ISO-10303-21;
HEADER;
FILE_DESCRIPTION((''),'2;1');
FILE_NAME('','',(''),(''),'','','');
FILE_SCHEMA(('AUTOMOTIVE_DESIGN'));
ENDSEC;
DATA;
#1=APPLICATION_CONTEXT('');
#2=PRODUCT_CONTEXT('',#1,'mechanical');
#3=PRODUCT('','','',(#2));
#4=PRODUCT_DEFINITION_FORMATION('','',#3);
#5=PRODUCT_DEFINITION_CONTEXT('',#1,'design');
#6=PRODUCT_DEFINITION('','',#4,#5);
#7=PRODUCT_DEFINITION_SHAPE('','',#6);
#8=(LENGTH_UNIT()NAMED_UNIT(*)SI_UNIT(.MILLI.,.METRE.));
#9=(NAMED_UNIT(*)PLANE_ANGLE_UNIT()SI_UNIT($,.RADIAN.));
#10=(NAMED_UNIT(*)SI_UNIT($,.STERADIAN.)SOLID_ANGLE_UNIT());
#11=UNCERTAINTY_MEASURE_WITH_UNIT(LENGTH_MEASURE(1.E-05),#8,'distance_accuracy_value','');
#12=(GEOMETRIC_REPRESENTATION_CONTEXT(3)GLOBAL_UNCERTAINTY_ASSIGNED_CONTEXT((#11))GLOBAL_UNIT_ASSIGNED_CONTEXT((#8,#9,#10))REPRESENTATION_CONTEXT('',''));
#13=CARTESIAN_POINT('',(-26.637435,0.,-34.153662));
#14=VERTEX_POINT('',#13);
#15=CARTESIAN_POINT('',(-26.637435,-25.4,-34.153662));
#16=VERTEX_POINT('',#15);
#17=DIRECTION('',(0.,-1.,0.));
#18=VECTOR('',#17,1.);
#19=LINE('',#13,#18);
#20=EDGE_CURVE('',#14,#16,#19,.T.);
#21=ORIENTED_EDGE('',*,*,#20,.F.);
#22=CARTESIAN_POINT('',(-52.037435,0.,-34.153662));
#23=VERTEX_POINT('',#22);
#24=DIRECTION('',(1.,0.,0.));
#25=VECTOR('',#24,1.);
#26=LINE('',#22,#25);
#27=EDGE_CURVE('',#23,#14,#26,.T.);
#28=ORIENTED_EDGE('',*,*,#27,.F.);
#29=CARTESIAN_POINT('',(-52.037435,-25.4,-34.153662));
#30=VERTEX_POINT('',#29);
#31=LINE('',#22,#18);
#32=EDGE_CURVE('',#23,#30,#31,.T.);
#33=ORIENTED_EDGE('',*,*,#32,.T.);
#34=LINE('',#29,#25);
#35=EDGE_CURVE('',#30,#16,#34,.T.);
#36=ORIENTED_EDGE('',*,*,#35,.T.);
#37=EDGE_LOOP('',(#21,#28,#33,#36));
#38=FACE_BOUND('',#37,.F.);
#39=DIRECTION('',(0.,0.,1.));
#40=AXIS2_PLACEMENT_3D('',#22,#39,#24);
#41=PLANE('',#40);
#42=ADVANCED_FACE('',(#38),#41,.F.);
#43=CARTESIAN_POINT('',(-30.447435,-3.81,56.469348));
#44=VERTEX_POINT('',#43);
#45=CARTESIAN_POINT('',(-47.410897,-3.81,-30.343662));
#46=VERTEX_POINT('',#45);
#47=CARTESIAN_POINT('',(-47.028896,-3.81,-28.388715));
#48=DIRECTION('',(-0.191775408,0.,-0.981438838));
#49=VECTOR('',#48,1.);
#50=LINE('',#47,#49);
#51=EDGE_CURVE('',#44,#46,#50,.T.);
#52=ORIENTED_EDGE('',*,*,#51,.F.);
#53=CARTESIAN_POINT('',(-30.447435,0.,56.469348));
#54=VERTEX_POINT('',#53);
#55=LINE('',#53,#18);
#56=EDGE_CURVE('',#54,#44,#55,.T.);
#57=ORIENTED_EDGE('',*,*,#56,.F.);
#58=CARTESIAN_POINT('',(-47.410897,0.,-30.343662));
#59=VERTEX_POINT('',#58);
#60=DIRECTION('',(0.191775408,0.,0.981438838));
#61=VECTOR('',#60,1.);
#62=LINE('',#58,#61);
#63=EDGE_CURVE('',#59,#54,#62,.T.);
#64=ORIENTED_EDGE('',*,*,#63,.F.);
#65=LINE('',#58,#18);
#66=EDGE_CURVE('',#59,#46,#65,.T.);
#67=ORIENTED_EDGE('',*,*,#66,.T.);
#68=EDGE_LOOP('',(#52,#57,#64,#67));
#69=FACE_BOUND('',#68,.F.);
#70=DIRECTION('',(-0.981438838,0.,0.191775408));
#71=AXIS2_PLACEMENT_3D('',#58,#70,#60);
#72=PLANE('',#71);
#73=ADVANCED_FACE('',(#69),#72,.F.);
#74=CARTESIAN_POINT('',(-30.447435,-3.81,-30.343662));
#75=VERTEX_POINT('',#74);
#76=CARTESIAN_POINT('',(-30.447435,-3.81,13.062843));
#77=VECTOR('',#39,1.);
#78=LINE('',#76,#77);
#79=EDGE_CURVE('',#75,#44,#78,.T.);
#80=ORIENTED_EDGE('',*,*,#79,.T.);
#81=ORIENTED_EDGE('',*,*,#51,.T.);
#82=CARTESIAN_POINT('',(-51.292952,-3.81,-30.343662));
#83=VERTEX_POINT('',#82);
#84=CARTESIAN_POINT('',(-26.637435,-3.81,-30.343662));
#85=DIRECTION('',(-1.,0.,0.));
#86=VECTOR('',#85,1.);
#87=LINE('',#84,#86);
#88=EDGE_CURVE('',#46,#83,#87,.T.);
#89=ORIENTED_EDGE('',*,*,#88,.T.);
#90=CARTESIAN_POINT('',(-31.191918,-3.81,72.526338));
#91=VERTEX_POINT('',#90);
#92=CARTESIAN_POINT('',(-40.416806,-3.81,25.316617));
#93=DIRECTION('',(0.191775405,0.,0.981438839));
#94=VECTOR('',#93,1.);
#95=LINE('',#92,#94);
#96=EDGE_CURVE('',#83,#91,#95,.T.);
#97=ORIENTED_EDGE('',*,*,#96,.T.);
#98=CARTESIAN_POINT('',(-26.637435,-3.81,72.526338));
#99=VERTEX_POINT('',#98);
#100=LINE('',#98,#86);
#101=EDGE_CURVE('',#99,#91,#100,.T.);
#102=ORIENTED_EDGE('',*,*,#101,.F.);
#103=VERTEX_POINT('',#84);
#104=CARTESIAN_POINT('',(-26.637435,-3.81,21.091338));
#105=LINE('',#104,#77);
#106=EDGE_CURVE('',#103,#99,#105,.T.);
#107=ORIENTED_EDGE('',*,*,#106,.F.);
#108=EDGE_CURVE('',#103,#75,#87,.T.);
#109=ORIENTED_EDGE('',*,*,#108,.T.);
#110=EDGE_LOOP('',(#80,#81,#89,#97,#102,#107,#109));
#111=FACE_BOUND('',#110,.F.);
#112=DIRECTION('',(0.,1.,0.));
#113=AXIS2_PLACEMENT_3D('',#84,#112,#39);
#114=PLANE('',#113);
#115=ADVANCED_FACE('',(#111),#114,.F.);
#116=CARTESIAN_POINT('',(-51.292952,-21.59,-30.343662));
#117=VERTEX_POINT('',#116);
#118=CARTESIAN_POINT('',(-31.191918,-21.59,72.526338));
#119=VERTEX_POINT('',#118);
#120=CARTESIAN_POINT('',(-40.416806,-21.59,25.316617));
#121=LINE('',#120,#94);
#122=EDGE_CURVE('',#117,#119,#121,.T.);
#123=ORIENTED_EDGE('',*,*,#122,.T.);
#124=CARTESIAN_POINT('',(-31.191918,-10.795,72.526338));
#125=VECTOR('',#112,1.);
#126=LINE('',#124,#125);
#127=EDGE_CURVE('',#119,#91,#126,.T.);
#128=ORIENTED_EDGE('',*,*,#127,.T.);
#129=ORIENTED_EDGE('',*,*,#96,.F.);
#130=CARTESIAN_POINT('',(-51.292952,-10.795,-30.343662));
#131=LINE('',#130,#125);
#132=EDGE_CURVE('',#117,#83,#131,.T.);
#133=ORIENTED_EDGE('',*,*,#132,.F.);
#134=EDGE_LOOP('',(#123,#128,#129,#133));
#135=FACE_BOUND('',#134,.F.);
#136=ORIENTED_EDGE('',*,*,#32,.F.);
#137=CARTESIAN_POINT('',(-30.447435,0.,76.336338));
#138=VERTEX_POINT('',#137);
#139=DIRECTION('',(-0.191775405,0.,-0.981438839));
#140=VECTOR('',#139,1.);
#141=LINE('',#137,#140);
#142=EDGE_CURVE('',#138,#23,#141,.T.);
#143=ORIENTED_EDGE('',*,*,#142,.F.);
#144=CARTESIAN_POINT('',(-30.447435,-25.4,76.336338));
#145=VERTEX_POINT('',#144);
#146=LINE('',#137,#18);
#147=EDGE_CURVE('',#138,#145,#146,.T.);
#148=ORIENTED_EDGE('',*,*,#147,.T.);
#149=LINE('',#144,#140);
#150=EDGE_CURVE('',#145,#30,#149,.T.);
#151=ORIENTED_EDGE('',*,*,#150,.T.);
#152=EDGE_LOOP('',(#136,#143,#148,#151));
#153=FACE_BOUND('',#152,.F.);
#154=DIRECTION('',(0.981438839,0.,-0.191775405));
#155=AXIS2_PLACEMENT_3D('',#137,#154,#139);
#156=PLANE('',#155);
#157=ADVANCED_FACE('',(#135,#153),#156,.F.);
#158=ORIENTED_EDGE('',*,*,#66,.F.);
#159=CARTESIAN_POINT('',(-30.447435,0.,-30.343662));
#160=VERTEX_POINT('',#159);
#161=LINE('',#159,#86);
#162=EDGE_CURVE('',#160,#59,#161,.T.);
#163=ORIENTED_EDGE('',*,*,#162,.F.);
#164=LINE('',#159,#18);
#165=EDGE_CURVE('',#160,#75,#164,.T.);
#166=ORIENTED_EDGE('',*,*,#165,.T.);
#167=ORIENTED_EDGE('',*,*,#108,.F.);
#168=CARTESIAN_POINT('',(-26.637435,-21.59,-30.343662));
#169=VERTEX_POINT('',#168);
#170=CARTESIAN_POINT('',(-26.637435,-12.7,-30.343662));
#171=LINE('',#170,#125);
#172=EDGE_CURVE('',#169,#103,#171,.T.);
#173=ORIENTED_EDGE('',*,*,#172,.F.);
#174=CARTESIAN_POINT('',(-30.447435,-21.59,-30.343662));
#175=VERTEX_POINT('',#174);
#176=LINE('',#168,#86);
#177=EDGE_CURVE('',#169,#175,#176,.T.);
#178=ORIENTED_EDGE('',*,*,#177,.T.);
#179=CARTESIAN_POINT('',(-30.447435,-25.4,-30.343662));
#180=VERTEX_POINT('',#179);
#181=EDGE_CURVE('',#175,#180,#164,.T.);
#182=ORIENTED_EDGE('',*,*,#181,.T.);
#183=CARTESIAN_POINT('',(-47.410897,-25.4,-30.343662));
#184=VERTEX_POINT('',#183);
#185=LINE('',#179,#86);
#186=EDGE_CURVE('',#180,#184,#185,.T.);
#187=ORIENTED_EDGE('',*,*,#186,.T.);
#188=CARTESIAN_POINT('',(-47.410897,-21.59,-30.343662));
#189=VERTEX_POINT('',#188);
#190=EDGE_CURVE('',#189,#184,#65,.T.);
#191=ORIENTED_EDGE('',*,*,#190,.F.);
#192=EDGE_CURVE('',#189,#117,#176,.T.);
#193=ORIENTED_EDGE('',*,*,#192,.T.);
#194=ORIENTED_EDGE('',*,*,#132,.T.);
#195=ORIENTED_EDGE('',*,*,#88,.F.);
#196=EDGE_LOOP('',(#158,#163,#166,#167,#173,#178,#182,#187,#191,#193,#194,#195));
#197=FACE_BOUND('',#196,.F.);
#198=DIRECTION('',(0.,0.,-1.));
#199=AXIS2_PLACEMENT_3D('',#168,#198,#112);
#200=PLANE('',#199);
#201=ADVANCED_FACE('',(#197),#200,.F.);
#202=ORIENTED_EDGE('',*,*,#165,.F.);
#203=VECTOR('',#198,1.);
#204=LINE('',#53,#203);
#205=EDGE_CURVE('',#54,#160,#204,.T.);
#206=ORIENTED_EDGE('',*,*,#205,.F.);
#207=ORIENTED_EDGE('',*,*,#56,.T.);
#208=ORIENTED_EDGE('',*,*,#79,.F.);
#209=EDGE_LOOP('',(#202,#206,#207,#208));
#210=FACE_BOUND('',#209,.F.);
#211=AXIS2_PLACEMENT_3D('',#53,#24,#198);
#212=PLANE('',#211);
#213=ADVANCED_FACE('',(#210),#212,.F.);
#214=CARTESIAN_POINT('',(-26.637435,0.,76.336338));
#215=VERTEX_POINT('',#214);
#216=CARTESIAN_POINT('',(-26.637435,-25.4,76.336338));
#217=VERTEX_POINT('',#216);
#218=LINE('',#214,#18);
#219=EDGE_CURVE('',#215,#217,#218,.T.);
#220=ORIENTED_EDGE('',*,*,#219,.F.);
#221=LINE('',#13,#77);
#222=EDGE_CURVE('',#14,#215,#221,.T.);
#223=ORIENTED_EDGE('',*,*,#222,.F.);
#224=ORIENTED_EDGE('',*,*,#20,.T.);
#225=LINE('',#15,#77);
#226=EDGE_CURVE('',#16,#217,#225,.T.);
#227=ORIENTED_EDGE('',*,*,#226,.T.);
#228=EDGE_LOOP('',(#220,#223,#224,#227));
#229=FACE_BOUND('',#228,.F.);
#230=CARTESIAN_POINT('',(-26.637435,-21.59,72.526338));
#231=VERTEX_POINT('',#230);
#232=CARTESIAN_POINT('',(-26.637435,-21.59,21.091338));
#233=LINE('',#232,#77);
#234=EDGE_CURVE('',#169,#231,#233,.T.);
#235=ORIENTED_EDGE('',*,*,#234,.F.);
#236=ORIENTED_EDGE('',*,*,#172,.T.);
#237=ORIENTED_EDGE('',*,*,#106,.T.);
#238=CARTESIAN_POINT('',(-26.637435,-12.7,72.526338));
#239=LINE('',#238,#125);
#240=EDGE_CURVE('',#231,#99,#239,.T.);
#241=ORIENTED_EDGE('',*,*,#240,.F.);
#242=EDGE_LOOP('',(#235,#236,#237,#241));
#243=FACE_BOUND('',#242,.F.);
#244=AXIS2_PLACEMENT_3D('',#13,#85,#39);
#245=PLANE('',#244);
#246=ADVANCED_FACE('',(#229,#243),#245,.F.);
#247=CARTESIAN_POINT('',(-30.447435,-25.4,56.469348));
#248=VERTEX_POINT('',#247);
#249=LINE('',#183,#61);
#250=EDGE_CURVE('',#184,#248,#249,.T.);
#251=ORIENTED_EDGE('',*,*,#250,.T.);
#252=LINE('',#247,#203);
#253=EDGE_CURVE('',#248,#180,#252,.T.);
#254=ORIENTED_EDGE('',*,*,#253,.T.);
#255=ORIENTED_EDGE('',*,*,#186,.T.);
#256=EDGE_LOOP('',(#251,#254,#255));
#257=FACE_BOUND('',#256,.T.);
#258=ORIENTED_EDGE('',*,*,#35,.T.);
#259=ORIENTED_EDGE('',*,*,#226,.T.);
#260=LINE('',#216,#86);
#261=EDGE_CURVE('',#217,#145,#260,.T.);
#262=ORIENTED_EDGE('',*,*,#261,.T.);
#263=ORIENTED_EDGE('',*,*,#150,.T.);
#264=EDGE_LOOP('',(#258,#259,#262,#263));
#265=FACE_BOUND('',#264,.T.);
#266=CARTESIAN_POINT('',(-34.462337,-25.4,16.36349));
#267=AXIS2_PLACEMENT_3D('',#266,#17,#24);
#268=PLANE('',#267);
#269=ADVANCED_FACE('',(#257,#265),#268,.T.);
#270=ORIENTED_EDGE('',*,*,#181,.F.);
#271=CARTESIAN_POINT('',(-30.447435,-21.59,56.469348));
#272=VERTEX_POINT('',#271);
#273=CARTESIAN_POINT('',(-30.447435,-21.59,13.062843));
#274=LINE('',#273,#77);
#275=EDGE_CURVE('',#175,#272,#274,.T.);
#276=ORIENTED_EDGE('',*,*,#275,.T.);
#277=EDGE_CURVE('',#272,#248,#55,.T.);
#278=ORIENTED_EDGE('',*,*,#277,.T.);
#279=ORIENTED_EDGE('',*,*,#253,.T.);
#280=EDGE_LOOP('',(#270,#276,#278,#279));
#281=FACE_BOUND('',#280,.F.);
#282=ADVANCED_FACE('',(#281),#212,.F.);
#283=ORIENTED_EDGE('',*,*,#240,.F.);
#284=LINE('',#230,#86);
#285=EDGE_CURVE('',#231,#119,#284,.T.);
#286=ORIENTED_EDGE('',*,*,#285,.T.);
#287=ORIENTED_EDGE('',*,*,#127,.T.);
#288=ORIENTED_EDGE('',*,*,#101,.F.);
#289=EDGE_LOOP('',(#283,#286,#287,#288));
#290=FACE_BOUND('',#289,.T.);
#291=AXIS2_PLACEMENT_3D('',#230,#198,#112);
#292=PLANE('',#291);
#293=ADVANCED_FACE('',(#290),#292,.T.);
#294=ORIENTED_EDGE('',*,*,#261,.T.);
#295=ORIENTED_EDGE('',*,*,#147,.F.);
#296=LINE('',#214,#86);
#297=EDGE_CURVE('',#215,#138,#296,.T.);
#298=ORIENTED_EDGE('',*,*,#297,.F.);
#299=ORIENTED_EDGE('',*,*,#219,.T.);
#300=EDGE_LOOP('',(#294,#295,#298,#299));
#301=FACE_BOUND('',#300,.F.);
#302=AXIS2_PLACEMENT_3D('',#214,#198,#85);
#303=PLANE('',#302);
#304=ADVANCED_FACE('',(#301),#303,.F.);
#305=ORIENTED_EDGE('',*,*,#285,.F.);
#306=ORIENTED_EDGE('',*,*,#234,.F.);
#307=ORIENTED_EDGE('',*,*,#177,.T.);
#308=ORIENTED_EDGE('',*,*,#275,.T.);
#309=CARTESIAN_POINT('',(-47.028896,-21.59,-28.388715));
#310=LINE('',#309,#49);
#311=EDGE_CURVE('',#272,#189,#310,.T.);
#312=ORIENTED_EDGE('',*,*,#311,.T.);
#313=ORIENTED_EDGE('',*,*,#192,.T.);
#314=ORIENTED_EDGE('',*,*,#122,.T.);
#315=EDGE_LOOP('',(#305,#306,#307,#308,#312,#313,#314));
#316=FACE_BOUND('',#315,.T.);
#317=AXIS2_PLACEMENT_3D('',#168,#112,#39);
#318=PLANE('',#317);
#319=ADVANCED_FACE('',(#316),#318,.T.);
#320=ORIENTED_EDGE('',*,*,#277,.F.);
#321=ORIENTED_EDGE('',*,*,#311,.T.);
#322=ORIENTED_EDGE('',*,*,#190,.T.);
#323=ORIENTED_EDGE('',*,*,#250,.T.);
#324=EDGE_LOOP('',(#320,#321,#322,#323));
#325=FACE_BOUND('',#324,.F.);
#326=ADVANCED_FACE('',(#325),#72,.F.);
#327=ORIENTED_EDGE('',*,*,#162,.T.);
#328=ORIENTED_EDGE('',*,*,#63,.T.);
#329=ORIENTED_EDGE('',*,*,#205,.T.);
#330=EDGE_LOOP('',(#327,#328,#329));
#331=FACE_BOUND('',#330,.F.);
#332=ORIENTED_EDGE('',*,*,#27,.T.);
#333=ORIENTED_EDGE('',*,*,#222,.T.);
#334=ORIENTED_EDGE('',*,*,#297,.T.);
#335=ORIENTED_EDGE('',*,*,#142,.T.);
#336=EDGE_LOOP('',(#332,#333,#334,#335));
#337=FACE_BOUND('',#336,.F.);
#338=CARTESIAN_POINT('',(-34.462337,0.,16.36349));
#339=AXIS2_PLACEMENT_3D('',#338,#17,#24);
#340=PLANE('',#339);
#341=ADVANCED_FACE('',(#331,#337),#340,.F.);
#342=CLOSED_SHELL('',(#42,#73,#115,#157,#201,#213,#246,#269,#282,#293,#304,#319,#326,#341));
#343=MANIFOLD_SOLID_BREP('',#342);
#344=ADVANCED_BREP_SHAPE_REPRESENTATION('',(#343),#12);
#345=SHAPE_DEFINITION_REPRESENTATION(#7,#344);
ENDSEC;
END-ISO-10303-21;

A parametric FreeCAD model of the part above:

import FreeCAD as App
import Part
import Sketcher
from FreeCAD import Vector
Q = App.Units.Quantity

doc = App.newDocument("Part")
body = doc.addObject("PartDesign::Body", "Body")

# Sketch on XZ plane
sketch1 = body.newObject("Sketcher::SketchObject", "Sketch")
sketch1.AttachmentSupport = (doc.getObject("XZ_Plane"), [""])
sketch1.MapMode = "FlatFace"
sketch1.addGeometry(Part.LineSegment(Vector(-26.6, 76.3, 0), Vector(-30.4, 76.3, 0)), False)
sketch1.addGeometry(Part.LineSegment(Vector(-30.4, 76.3, 0), Vector(-52, -34.2, 0)), False)
sketch1.addGeometry(Part.LineSegment(Vector(-52, -34.2, 0), Vector(-26.6, -34.2, 0)), False)
sketch1.addGeometry(Part.LineSegment(Vector(-26.6, -34.2, 0), Vector(-26.6, 76.3, 0)), False)
sketch1.addGeometry(Part.LineSegment(Vector(-30.4, -30.3, 0), Vector(-47.4, -30.3, 0)), False)
sketch1.addGeometry(Part.LineSegment(Vector(-47.4, -30.3, 0), Vector(-30.4, 56.5, 0)), False)
sketch1.addGeometry(Part.LineSegment(Vector(-30.4, 56.5, 0), Vector(-30.4, -30.3, 0)), False)
sketch1.addConstraint(Sketcher.Constraint("Coincident", 0, 2, 1, 1))
sketch1.addConstraint(Sketcher.Constraint("Coincident", 1, 2, 2, 1))
sketch1.addConstraint(Sketcher.Constraint("Coincident", 2, 2, 3, 1))
sketch1.addConstraint(Sketcher.Constraint("Coincident", 3, 2, 0, 1))
sketch1.addConstraint(Sketcher.Constraint("Coincident", 4, 2, 5, 1))
sketch1.addConstraint(Sketcher.Constraint("Coincident", 5, 2, 6, 1))
sketch1.addConstraint(Sketcher.Constraint("Coincident", 6, 2, 4, 1))
sketch1.addConstraint(Sketcher.Constraint("Horizontal", 0))
sketch1.addConstraint(Sketcher.Constraint("Horizontal", 2))
sketch1.addConstraint(Sketcher.Constraint("Vertical", 3))
sketch1.addConstraint(Sketcher.Constraint("Horizontal", 4))
sketch1.addConstraint(Sketcher.Constraint("Vertical", 6))
sketch1.addConstraint(Sketcher.Constraint("Parallel", 1, 5))
sketch1.addConstraint(Sketcher.Constraint("Vertical", 0, 2, 5, 2))
sketch1.addConstraint(Sketcher.Constraint("DistanceX", 2, 1, 2, 2, Q("1 in")))
sketch1.addConstraint(Sketcher.Constraint("DistanceX", 0, 2, 0, 1, Q("0.15 in")))
sketch1.addConstraint(Sketcher.Constraint("DistanceY", 3, 1, 3, 2, Q("4.35 in")))
sketch1.addConstraint(Sketcher.Constraint("DistanceY", 4, 2, 0, 2, Q("4.2 in")))
sketch1.addConstraint(Sketcher.Constraint("DistanceX", 4, 2, 4, 1, Q("16.963462 mm")))
sketch1.addConstraint(Sketcher.Constraint("DistanceY", 1, 2, -1, 1, Q("34.153662 mm")))
sketch1.addConstraint(Sketcher.Constraint("DistanceX", 0, 2, -1, 1, Q("30.447435 mm")))
pad1 = body.newObject("PartDesign::Pad", "Pad")
pad1.Profile = sketch1
pad1.Length = Q("1 in")

# Sketch on YZ plane
sketch2 = body.newObject("Sketcher::SketchObject", "Sketch001")
sketch2.AttachmentSupport = (doc.getObject("YZ_Plane"), [""])
sketch2.MapMode = "FlatFace"
sketch2.AttachmentOffset = App.Placement(Vector(0, 0, -26.637435), App.Rotation())
sketch2.addGeometry(Part.LineSegment(Vector(-22, 73, 0), Vector(-22, -30, 0)), False)
sketch2.addGeometry(Part.LineSegment(Vector(-22, -30, 0), Vector(-4, -30, 0)), False)
sketch2.addGeometry(Part.LineSegment(Vector(-4, -30, 0), Vector(-4, 73, 0)), False)
sketch2.addGeometry(Part.LineSegment(Vector(-4, 73, 0), Vector(-22, 73, 0)), False)
sketch2.addConstraint(Sketcher.Constraint("Coincident", 0, 2, 1, 1))
sketch2.addConstraint(Sketcher.Constraint("Coincident", 1, 2, 2, 1))
sketch2.addConstraint(Sketcher.Constraint("Coincident", 2, 2, 3, 1))
sketch2.addConstraint(Sketcher.Constraint("Coincident", 3, 2, 0, 1))
sketch2.addConstraint(Sketcher.Constraint("Vertical", 0))
sketch2.addConstraint(Sketcher.Constraint("Horizontal", 1))
sketch2.addConstraint(Sketcher.Constraint("Vertical", 2))
sketch2.addConstraint(Sketcher.Constraint("Horizontal", 3))
sketch2.addConstraint(Sketcher.Constraint("DistanceX", 1, 1, 1, 2, Q("0.7 in")))
sketch2.addConstraint(Sketcher.Constraint("DistanceY", 0, 2, 0, 1, Q("4.05 in")))
sketch2.addConstraint(Sketcher.Constraint("DistanceX", 0, 2, -1, 1, Q("0.85 in")))
sketch2.addConstraint(Sketcher.Constraint("DistanceY", 0, 2, -1, 1, Q("30.343662 mm")))
pocket1 = body.newObject("PartDesign::Pocket", "Pocket")
pocket1.Profile = sketch2
pocket1.Length = Q("2 in")

doc.recompute()
